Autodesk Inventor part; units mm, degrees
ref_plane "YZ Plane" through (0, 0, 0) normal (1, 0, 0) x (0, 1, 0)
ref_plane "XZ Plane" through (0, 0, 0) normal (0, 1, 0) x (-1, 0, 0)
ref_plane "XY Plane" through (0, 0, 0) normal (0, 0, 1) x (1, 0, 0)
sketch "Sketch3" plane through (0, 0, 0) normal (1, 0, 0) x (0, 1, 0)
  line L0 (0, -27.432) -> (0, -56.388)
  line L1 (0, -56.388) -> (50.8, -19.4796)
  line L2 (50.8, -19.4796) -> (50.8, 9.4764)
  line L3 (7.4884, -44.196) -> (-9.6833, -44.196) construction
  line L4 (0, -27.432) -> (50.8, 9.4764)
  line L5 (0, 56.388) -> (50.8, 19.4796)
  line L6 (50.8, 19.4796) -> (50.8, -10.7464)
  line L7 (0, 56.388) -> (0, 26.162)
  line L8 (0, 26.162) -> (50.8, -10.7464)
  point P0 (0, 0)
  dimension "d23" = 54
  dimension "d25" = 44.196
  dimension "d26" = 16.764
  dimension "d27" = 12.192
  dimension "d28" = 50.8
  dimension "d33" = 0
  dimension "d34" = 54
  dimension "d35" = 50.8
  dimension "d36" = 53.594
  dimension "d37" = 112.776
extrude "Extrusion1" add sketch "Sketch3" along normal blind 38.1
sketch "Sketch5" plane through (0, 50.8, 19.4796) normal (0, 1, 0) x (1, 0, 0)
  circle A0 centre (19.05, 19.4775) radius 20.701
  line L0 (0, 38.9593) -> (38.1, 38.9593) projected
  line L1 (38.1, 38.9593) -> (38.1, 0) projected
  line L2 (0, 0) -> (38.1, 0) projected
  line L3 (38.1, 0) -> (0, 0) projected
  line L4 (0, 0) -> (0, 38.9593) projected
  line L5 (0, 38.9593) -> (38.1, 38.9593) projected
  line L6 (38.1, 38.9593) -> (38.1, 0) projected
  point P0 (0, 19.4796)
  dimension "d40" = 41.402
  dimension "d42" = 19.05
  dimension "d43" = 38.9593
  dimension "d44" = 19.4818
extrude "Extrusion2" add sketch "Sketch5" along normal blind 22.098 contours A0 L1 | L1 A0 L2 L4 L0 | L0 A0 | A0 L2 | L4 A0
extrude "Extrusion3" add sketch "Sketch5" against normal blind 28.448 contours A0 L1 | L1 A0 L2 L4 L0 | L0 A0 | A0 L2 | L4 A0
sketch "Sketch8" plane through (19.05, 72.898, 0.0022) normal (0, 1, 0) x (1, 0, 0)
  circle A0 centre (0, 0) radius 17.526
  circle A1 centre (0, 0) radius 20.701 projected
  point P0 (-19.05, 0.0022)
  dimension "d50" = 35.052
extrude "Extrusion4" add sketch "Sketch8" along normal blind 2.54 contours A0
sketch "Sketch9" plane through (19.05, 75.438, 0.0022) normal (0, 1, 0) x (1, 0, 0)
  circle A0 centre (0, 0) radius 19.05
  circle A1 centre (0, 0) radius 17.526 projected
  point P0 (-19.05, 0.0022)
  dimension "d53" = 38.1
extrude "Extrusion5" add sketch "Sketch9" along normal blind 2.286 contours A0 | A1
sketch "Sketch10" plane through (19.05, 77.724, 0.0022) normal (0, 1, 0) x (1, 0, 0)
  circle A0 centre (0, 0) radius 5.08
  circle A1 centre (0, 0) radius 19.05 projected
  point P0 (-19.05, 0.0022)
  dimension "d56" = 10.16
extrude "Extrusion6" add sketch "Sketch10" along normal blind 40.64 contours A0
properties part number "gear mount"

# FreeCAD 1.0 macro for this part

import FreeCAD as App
import Part
import Sketcher

V = App.Vector
Q = App.Units.Quantity


def add_polygon(sketch, points):
    """Adds a closed chain of lines whose ends are joined by coincident constraints."""
    first, n = sketch.GeometryCount, len(points)
    for a, b in zip(points, points[1:] + points[:1]):
        sketch.addGeometry(Part.LineSegment(App.Vector(*a, 0), App.Vector(*b, 0)), False)
    for i in range(n):
        sketch.addConstraint(Sketcher.Constraint("Coincident", first + i, 2, first + (i + 1) % n, 1))

doc = App.newDocument("Part")
body = doc.addObject("PartDesign::Body", "Body")

# Sketch on YZ plane
sketch1 = doc.addObject("Sketcher::SketchObject", "Sketch")
body.addObject(sketch1)
sketch1.AttachmentSupport = (doc.YZ_Plane, [""])
sketch1.MapMode = "FlatFace"
add_polygon(sketch1, [(37, -1), (0, -27), (0, -56), (51, -19), (51, 19), (0, 56), (0, 26)])  # lines 0-6
sketch1.addConstraint(Sketcher.Constraint("Vertical", 1))
sketch1.addConstraint(Sketcher.Constraint("Vertical", 3))
sketch1.addConstraint(Sketcher.Constraint("Vertical", 5))
sketch1.addConstraint(Sketcher.Constraint("Symmetric", 1, 2, 4, 2, -1, 1))
sketch1.addConstraint(Sketcher.Constraint("PointOnObject", 0, 2, -2))
sketch1.addConstraint(Sketcher.Constraint("Parallel", 0, 2))
sketch1.addConstraint(Sketcher.Constraint("Parallel", 4, 6))
sketch1.addConstraint(Sketcher.Constraint("Equal", 2, 4))
sketch1.addConstraint(Sketcher.Constraint("DistanceX", -1, 1, 2, 2, Q("2 in")))
sketch1.addConstraint(Sketcher.Constraint("DistanceY", 1, 2, 4, 2, Q("4.44 in")))
sketch1.addConstraint(Sketcher.Constraint("DistanceY", 0, 2, 5, 2, Q("2.11 in")))
sketch1.addConstraint(Sketcher.Constraint("Angle", 0, Q("-144 deg")))
sketch1.addConstraint(Sketcher.Constraint("DistanceY", 1, 2, 1, 1, Q("1.14 in")))
pad1 = doc.addObject("PartDesign::Pad", "Pad")
body.addObject(pad1)
pad1.Profile = sketch1
pad1.Length = Q("1.5 in")

# Sketch on XZ plane
sketch2 = doc.addObject("Sketcher::SketchObject", "Sketch001")
body.addObject(sketch2)
sketch2.AttachmentSupport = (doc.XZ_Plane, [""])
sketch2.MapMode = "FlatFace"
sketch2.AttachmentOffset = App.Placement(V(0, 0, -2 * 25.4), App.Rotation())
sketch2.addGeometry(Part.Circle(V(19, 0, 0), V(0, 0, 1), 21), False)
sketch2.addConstraint(Sketcher.Constraint("Diameter", 0, Q("1.63 in")))
sketch2.addConstraint(Sketcher.Constraint("DistanceX", -1, 1, 0, 3, Q("0.75 in")))
sketch2.addConstraint(Sketcher.Constraint("DistanceY", -1, 1, 0, 3, Q("0.002 mm")))
pad2 = doc.addObject("PartDesign::Pad", "Pad001")
body.addObject(pad2)
pad2.Profile = sketch2
pad2.Length = Q("0.87 in")
pad2.Reversed = True

# Sketch on XZ plane
sketch3 = doc.addObject("Sketcher::SketchObject", "Sketch002")
body.addObject(sketch3)
sketch3.AttachmentSupport = (doc.XZ_Plane, [""])
sketch3.MapMode = "FlatFace"
sketch3.AttachmentOffset = App.Placement(V(0, 0, -2 * 25.4), App.Rotation())
sketch3.addGeometry(Part.Circle(V(19, 0, 0), V(0, 0, 1), 21), False)
sketch3.addConstraint(Sketcher.Constraint("Diameter", 0, Q("1.63 in")))
sketch3.addConstraint(Sketcher.Constraint("DistanceX", -1, 1, 0, 3, Q("0.75 in")))
sketch3.addConstraint(Sketcher.Constraint("DistanceY", -1, 1, 0, 3, Q("0.002 mm")))
pad3 = doc.addObject("PartDesign::Pad", "Pad002")
body.addObject(pad3)
pad3.Profile = sketch3
pad3.Length = Q("1.12 in")

# Sketch on XZ plane
sketch4 = doc.addObject("Sketcher::SketchObject", "Sketch003")
body.addObject(sketch4)
sketch4.AttachmentSupport = (doc.XZ_Plane, [""])
sketch4.MapMode = "FlatFace"
sketch4.AttachmentOffset = App.Placement(V(0, 0, -2.87 * 25.4), App.Rotation())
sketch4.addGeometry(Part.Circle(V(19, 0, 0), V(0, 0, 1), 18), False)
sketch4.addConstraint(Sketcher.Constraint("Diameter", 0, Q("1.38 in")))
sketch4.addConstraint(Sketcher.Constraint("DistanceX", -1, 1, 0, 3, Q("0.75 in")))
sketch4.addConstraint(Sketcher.Constraint("DistanceY", -1, 1, 0, 3, Q("0.0022 mm")))
pad4 = doc.addObject("PartDesign::Pad", "Pad003")
body.addObject(pad4)
pad4.Profile = sketch4
pad4.Length = Q("0.1 in")
pad4.Reversed = True

# Sketch on XZ plane
sketch5 = doc.addObject("Sketcher::SketchObject", "Sketch004")
body.addObject(sketch5)
sketch5.AttachmentSupport = (doc.XZ_Plane, [""])
sketch5.MapMode = "FlatFace"
sketch5.AttachmentOffset = App.Placement(V(0, 0, -2.97 * 25.4), App.Rotation())
sketch5.addGeometry(Part.Circle(V(19, 0, 0), V(0, 0, 1), 19), False)
sketch5.addConstraint(Sketcher.Constraint("Diameter", 0, Q("1.5 in")))
sketch5.addConstraint(Sketcher.Constraint("DistanceX", -1, 1, 0, 3, Q("0.75 in")))
sketch5.addConstraint(Sketcher.Constraint("DistanceY", -1, 1, 0, 3, Q("0.0022 mm")))
pad5 = doc.addObject("PartDesign::Pad", "Pad004")
body.addObject(pad5)
pad5.Profile = sketch5
pad5.Length = Q("0.09 in")
pad5.Reversed = True

# Sketch on XZ plane
sketch6 = doc.addObject("Sketcher::SketchObject", "Sketch005")
body.addObject(sketch6)
sketch6.AttachmentSupport = (doc.XZ_Plane, [""])
sketch6.MapMode = "FlatFace"
sketch6.AttachmentOffset = App.Placement(V(0, 0, -3.06 * 25.4), App.Rotation())
sketch6.addGeometry(Part.Circle(V(19, 0, 0), V(0, 0, 1), 5), False)
sketch6.addConstraint(Sketcher.Constraint("Diameter", 0, Q("0.4 in")))
sketch6.addConstraint(Sketcher.Constraint("DistanceX", -1, 1, 0, 3, Q("0.75 in")))
sketch6.addConstraint(Sketcher.Constraint("DistanceY", -1, 1, 0, 3, Q("0.0022 mm")))
pad6 = doc.addObject("PartDesign::Pad", "Pad005")
body.addObject(pad6)
pad6.Profile = sketch6
pad6.Length = Q("1.6 in")
pad6.Reversed = True

doc.recompute()
